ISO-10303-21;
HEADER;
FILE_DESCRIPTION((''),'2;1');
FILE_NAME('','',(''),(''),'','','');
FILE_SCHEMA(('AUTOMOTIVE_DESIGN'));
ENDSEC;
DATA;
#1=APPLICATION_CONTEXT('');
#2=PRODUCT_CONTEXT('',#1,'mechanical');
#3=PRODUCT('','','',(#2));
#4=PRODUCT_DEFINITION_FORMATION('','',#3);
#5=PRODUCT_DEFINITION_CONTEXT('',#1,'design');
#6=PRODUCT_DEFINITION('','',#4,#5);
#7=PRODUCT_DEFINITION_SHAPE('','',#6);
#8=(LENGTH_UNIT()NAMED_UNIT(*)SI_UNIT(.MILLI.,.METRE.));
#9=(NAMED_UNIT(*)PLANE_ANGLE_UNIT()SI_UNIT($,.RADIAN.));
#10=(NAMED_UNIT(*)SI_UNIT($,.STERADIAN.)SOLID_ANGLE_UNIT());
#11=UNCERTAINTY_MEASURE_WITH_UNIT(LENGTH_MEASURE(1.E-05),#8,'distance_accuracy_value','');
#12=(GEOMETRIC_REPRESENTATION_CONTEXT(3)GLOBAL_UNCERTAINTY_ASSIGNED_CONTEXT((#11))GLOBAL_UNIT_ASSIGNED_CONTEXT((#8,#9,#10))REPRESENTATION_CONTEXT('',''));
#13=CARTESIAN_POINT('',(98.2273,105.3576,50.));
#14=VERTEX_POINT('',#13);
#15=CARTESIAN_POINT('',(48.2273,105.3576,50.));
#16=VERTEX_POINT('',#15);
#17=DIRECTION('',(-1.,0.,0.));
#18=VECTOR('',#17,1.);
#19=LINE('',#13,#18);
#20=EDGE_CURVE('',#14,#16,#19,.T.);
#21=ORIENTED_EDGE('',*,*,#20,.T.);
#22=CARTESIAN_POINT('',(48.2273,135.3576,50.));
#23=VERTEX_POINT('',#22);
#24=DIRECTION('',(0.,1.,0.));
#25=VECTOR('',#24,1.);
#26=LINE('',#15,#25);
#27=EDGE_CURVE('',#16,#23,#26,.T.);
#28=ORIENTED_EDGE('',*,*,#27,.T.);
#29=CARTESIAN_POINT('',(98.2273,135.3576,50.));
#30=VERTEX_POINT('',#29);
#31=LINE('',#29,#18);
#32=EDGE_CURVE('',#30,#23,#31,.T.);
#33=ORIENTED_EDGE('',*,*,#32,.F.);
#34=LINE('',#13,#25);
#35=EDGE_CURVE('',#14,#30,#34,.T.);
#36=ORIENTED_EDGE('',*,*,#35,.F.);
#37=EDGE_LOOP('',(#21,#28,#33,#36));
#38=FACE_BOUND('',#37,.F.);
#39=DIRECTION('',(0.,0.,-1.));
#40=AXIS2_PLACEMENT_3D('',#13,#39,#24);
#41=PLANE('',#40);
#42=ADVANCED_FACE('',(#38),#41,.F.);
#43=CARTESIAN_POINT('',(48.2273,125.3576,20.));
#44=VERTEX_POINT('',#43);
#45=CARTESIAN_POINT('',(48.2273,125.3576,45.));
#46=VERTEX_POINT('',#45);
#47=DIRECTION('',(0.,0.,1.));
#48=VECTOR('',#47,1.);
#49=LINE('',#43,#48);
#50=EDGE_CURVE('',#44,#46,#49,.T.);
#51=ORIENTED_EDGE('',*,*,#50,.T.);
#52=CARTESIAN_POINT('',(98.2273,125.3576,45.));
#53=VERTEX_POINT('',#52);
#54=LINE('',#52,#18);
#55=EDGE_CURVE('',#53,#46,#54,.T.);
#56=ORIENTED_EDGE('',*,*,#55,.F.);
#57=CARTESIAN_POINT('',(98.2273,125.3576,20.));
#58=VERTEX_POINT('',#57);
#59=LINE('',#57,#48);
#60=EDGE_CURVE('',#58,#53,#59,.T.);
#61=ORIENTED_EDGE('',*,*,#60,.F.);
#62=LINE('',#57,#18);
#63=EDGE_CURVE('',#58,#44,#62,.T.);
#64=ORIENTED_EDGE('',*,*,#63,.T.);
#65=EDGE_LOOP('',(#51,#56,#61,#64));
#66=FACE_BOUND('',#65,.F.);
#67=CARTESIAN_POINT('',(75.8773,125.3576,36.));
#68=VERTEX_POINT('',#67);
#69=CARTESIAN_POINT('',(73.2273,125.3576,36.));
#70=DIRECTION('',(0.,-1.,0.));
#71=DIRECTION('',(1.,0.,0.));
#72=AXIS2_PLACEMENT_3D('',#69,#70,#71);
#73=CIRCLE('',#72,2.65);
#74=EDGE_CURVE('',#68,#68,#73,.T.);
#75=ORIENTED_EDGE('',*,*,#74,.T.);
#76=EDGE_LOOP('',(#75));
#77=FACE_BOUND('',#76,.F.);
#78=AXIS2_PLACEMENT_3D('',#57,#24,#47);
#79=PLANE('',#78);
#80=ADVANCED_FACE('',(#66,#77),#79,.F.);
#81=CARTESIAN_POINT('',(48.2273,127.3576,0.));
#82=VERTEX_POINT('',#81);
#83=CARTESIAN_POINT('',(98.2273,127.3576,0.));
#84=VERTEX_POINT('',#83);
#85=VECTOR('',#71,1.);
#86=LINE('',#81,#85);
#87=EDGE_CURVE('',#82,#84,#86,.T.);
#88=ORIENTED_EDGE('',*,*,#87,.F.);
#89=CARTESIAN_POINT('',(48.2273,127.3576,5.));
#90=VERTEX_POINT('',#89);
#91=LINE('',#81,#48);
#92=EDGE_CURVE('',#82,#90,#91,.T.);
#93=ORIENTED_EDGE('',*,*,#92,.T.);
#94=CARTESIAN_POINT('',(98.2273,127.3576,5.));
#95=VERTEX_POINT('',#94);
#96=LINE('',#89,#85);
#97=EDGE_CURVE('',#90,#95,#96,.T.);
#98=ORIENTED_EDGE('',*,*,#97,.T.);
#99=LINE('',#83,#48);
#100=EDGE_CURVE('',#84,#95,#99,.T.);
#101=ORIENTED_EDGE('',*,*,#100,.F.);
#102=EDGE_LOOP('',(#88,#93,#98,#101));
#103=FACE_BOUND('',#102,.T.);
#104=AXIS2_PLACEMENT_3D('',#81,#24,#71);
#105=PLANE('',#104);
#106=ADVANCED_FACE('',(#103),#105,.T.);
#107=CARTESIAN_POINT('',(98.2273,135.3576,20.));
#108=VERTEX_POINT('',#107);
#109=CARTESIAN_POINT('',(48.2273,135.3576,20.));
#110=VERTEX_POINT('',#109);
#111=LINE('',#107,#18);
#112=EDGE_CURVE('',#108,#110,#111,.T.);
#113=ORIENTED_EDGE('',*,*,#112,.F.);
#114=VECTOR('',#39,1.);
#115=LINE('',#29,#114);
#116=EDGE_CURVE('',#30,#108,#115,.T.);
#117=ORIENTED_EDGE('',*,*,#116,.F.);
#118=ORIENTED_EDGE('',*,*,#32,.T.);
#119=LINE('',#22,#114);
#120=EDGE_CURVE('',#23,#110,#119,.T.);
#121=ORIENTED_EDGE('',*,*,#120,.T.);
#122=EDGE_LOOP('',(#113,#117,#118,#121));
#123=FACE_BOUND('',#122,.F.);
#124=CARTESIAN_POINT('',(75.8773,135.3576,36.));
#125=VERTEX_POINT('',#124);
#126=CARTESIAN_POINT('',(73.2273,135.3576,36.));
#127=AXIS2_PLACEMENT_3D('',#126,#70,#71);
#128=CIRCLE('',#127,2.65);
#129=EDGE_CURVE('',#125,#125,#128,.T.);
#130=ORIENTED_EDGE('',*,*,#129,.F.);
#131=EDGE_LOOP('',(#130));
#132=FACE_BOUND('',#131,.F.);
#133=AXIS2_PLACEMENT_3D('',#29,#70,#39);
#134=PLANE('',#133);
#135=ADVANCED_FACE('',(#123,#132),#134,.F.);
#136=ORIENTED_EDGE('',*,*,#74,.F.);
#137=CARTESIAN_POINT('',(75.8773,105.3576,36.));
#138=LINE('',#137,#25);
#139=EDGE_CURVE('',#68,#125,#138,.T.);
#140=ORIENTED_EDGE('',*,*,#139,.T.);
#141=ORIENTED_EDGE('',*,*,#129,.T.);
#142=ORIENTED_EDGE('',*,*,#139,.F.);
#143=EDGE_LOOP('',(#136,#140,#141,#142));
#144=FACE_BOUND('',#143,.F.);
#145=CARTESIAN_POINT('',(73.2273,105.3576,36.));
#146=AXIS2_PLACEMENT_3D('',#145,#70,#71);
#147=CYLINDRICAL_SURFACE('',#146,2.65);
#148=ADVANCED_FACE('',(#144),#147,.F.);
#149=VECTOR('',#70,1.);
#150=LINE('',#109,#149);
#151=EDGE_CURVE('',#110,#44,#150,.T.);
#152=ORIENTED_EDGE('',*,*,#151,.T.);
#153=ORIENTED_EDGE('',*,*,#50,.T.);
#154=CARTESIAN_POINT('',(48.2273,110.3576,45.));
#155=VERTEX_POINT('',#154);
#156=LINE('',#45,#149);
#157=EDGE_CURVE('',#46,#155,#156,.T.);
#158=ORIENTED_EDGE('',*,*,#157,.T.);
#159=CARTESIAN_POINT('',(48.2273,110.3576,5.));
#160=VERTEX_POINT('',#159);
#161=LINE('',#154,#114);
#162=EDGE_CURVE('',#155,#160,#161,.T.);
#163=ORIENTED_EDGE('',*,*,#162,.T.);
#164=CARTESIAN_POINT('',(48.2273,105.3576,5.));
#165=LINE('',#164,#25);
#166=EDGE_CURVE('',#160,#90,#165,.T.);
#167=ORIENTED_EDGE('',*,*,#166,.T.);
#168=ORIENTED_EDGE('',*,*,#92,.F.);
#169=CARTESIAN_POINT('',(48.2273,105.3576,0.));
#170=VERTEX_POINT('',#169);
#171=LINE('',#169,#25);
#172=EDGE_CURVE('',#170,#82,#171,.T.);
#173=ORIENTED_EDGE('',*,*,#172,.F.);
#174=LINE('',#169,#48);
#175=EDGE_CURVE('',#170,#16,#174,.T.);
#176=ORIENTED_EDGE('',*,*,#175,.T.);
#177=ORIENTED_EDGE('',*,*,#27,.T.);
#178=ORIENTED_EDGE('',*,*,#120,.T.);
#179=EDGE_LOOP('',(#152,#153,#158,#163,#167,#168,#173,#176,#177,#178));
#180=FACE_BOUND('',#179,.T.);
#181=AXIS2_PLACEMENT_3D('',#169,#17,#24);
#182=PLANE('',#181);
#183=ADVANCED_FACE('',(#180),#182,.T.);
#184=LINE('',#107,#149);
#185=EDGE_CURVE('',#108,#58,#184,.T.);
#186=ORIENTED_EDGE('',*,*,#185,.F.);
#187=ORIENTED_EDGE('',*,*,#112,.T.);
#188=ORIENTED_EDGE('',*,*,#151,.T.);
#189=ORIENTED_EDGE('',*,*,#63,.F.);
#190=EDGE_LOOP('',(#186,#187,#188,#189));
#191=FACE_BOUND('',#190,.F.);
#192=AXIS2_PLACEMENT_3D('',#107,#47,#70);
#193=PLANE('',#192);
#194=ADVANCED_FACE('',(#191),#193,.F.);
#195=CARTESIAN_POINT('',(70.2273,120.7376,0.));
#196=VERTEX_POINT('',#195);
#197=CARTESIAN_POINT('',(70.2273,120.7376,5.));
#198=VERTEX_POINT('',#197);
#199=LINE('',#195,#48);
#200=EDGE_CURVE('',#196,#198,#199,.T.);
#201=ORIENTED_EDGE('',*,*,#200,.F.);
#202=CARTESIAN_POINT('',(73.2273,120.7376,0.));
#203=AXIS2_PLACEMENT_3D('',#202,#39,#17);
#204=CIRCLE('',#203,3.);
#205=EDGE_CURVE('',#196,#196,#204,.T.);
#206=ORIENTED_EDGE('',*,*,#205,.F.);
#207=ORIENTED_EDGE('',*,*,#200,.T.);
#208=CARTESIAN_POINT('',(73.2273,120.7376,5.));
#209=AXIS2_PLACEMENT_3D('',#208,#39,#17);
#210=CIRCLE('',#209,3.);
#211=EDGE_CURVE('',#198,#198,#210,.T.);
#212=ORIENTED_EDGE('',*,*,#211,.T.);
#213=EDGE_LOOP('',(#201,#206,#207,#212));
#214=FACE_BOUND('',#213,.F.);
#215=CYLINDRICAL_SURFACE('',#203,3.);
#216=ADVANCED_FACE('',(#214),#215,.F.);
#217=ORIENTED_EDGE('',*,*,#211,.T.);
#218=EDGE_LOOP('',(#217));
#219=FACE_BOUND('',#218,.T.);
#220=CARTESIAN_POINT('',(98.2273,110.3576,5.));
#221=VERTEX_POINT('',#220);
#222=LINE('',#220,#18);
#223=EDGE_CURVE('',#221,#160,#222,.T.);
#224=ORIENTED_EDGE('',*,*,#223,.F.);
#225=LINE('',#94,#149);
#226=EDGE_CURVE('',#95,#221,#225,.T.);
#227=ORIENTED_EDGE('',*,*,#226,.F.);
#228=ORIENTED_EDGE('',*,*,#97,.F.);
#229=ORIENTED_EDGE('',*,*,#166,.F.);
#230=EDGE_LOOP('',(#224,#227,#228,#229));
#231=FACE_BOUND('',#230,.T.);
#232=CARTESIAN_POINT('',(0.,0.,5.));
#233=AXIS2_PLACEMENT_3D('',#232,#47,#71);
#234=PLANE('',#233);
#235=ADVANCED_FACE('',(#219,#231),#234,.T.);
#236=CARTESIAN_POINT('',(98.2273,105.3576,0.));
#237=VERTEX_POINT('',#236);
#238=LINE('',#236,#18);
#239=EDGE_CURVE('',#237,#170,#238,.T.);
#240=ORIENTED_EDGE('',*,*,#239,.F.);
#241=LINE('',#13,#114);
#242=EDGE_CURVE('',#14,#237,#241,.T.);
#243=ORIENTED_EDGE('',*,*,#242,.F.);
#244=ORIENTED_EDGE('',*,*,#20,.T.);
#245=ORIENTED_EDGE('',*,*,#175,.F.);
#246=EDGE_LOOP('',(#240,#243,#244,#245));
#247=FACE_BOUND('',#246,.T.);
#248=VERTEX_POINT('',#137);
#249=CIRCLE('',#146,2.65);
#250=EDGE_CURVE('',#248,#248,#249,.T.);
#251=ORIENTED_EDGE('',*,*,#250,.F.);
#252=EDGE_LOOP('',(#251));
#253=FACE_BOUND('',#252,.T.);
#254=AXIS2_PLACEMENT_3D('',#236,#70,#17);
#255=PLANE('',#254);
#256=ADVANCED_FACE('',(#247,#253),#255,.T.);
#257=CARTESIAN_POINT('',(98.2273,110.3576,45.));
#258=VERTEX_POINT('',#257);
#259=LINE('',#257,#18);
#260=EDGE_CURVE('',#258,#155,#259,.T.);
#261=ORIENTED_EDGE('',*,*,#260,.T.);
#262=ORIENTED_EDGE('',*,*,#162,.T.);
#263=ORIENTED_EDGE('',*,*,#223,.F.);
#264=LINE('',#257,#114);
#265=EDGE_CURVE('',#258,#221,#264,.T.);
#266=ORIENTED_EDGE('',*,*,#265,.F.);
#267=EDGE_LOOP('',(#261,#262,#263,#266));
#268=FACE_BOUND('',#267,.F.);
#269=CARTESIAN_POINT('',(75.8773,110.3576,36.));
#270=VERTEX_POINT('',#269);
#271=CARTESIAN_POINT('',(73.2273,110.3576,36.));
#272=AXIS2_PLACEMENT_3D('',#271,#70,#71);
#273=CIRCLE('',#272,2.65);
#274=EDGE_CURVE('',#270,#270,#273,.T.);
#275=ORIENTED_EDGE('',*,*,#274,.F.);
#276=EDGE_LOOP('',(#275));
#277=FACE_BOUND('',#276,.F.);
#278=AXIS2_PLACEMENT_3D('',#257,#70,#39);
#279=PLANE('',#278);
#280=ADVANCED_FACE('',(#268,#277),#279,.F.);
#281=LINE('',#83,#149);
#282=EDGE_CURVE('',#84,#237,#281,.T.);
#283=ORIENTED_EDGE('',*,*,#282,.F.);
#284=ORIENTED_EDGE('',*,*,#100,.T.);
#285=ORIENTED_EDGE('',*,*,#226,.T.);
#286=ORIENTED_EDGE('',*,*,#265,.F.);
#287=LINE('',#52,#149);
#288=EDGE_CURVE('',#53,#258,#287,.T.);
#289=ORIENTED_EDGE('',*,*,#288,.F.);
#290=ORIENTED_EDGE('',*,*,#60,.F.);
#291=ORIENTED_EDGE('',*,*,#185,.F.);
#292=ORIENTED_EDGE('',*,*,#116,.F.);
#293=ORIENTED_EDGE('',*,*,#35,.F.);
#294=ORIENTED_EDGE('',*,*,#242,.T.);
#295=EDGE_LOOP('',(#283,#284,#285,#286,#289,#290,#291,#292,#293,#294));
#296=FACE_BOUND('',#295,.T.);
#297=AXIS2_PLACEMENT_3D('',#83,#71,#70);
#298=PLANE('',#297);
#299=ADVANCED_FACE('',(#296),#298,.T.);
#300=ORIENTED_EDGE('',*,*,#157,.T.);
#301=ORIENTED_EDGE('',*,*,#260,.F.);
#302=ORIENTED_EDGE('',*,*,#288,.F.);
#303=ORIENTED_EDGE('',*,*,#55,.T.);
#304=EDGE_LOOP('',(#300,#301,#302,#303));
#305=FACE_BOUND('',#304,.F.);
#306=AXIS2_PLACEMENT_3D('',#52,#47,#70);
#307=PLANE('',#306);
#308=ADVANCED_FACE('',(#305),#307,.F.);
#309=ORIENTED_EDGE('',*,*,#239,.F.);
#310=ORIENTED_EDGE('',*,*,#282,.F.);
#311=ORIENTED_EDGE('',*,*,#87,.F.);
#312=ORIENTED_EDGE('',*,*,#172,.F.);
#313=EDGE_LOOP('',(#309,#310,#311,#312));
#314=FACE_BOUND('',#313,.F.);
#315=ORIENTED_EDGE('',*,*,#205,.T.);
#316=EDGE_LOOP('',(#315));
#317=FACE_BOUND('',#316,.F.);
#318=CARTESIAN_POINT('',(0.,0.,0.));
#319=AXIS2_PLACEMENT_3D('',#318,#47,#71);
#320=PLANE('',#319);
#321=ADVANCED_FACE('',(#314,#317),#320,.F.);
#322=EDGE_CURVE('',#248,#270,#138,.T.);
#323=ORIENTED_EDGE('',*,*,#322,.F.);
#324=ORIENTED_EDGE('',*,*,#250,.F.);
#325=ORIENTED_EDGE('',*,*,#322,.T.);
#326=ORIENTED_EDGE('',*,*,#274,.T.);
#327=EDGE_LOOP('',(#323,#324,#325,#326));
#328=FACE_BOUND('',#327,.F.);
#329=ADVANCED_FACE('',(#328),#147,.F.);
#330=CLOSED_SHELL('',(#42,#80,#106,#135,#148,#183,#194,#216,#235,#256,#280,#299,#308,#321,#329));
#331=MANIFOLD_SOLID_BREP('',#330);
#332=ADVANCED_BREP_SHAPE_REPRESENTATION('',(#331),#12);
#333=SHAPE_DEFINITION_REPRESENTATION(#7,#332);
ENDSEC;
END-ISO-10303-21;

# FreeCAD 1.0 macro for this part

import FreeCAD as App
import Part
import Sketcher
from FreeCAD import Vector


def add_polygon(sketch, points):
    """Adds a closed chain of lines whose ends are joined by coincident constraints."""
    first, n = sketch.GeometryCount, len(points)
    for a, b in zip(points, points[1:] + points[:1]):
        sketch.addGeometry(Part.LineSegment(App.Vector(*a, 0), App.Vector(*b, 0)), False)
    for i in range(n):
        sketch.addConstraint(Sketcher.Constraint("Coincident", first + i, 2, first + (i + 1) % n, 1))

doc = App.newDocument("Part")
params = doc.addObject("Spreadsheet::Sheet", "Params")
for row, (alias, value) in enumerate([
    ("sketch1_width", "50 mm"),
    ("sketch1_height", "22 mm"),
    ("pad1_length", "5 mm"),
    ("sketch2_width", "5 mm"),
    ("sketch2_width2", "15 mm"),
    ("sketch2_width3", "10 mm"),
    ("sketch2_height", "45 mm"),
    ("sketch2_height2", "40 mm"),
    ("pad2_length", "50 mm"),
    ("sketch3_diameter", "5.3 mm"),
    ("pocket1_length", "50 mm"),
    ("sketch4_diameter", "6 mm"),
    ("pocket2_length", "20 mm"),
], start=1):
    params.set(f"A{row}", alias)
    params.set(f"B{row}", "=" + value)
    params.setAlias(f"B{row}", alias)

body = doc.addObject("PartDesign::Body", "Body")

# Sketch on XY plane
sketch1 = body.newObject("Sketcher::SketchObject", "Sketch")
sketch1.AttachmentSupport = (doc.getObject("XY_Plane"), [""])
sketch1.MapMode = "FlatFace"
add_polygon(sketch1, [(98, 127), (48, 127), (48, 105), (98, 105)])  # lines 0-3
sketch1.addConstraint(Sketcher.Constraint("Horizontal", 0))
sketch1.addConstraint(Sketcher.Constraint("Vertical", 1))
sketch1.addConstraint(Sketcher.Constraint("Horizontal", 2))
sketch1.addConstraint(Sketcher.Constraint("Vertical", 3))
sketch1.addConstraint(Sketcher.Constraint("DistanceX", 0, 2, 0, 1, 50.0))
sketch1.addConstraint(Sketcher.Constraint("DistanceY", 1, 2, 1, 1, 22.0))
sketch1.addConstraint(Sketcher.Constraint("DistanceX", -1, 1, 0, 2, 48.2273))
sketch1.addConstraint(Sketcher.Constraint("DistanceY", -1, 1, 0, 2, 127.3576))
sketch1.setExpression("Constraints[8]", "Params.sketch1_width")
sketch1.setExpression("Constraints[9]", "Params.sketch1_height")
pad1 = body.newObject("PartDesign::Pad", "Pad")
pad1.Profile = sketch1
pad1.setExpression("Length", "Params.pad1_length")

# Sketch on YZ plane
sketch2 = body.newObject("Sketcher::SketchObject", "Sketch001")
sketch2.AttachmentSupport = (doc.getObject("YZ_Plane"), [""])
sketch2.MapMode = "FlatFace"
sketch2.AttachmentOffset = App.Placement(Vector(0, 0, 98.2273), App.Rotation())
add_polygon(sketch2, [(105, 50), (105, 5), (110, 5), (110, 45), (125, 45), (125, 20), (135, 20), (135, 50)])  # lines 0-7
sketch2.addConstraint(Sketcher.Constraint("Vertical", 0))
sketch2.addConstraint(Sketcher.Constraint("Horizontal", 1))
sketch2.addConstraint(Sketcher.Constraint("Vertical", 2))
sketch2.addConstraint(Sketcher.Constraint("Horizontal", 3))
sketch2.addConstraint(Sketcher.Constraint("Vertical", 4))
sketch2.addConstraint(Sketcher.Constraint("Horizontal", 5))
sketch2.addConstraint(Sketcher.Constraint("Vertical", 6))
sketch2.addConstraint(Sketcher.Constraint("Horizontal", 7))
sketch2.addConstraint(Sketcher.Constraint("Equal", 7, 6))
sketch2.addConstraint(Sketcher.Constraint("DistanceX", 1, 1, 1, 2, 5.0))
sketch2.addConstraint(Sketcher.Constraint("DistanceX", 3, 1, 3, 2, 15.0))
sketch2.addConstraint(Sketcher.Constraint("DistanceX", 5, 1, 5, 2, 10.0))
sketch2.addConstraint(Sketcher.Constraint("DistanceY", 0, 2, 0, 1, 45.0))
sketch2.addConstraint(Sketcher.Constraint("DistanceY", 2, 1, 2, 2, 40.0))
sketch2.addConstraint(Sketcher.Constraint("DistanceY", -1, 1, 0, 2, 5.0))
sketch2.addConstraint(Sketcher.Constraint("DistanceX", -1, 1, 0, 2, 105.3576))
sketch2.setExpression("Constraints[17]", "Params.sketch2_width")
sketch2.setExpression("Constraints[18]", "Params.sketch2_width2")
sketch2.setExpression("Constraints[19]", "Params.sketch2_width3")
sketch2.setExpression("Constraints[20]", "Params.sketch2_height")
sketch2.setExpression("Constraints[21]", "Params.sketch2_height2")
pad2 = body.newObject("PartDesign::Pad", "Pad001")
pad2.Profile = sketch2
pad2.setExpression("Length", "Params.pad2_length")
pad2.Reversed = True

# Sketch on XZ plane
sketch3 = body.newObject("Sketcher::SketchObject", "Sketch002")
sketch3.AttachmentSupport = (doc.getObject("XZ_Plane"), [""])
sketch3.MapMode = "FlatFace"
sketch3.AttachmentOffset = App.Placement(Vector(0, 0, -105.3576), App.Rotation())
sketch3.addGeometry(Part.Circle(Vector(73.2, 36, 0), Vector(0, 0, 1), 2.6), False)
sketch3.addConstraint(Sketcher.Constraint("Diameter", 0, 5.3))
sketch3.addConstraint(Sketcher.Constraint("DistanceY", -1, 1, 0, 3, 36.0))
sketch3.addConstraint(Sketcher.Constraint("DistanceX", -1, 1, 0, 3, 73.2273))
sketch3.setExpression("Constraints[0]", "Params.sketch3_diameter")
pocket1 = body.newObject("PartDesign::Pocket", "Pocket")
pocket1.Profile = sketch3
pocket1.setExpression("Length", "Params.pocket1_length")

# Sketch on XY plane
sketch4 = body.newObject("Sketcher::SketchObject", "Sketch003")
sketch4.AttachmentSupport = (doc.getObject("XY_Plane"), [""])
sketch4.MapMode = "FlatFace"
sketch4.addGeometry(Part.Circle(Vector(73.2, 120.7, 0), Vector(0, 0, 1), 3), False)
sketch4.addConstraint(Sketcher.Constraint("Diameter", 0, 6.0))
sketch4.addConstraint(Sketcher.Constraint("DistanceX", -1, 1, 0, 3, 73.2273))
sketch4.addConstraint(Sketcher.Constraint("DistanceY", -1, 1, 0, 3, 120.7376))
sketch4.setExpression("Constraints[0]", "Params.sketch4_diameter")
pocket2 = body.newObject("PartDesign::Pocket", "Pocket001")
pocket2.Profile = sketch4
pocket2.setExpression("Length", "Params.pocket2_length")
pocket2.Reversed = True

doc.recompute()
